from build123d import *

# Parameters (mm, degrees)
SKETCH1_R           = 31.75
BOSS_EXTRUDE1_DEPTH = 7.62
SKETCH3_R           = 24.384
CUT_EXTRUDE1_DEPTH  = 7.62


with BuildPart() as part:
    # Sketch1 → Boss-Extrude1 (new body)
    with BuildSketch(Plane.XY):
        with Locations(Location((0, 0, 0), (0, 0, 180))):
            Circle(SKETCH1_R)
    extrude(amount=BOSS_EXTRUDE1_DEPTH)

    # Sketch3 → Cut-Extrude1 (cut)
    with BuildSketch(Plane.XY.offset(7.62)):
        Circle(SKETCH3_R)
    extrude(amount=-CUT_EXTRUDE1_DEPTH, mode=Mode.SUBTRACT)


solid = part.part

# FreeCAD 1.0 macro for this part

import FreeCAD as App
import Part
import Sketcher
from FreeCAD import Vector
Q = App.Units.Quantity

doc = App.newDocument("Part")
body = doc.addObject("PartDesign::Body", "Body")

# Sketch on XY plane
sketch1 = body.newObject("Sketcher::SketchObject", "Sketch")
sketch1.AttachmentSupport = (doc.getObject("XY_Plane"), [""])
sketch1.MapMode = "FlatFace"
sketch1.addGeometry(Part.Circle(Vector(0, 0, 0), Vector(0, 0, 1), 32), False)
sketch1.addConstraint([
    Sketcher.Constraint("Coincident", 0, 3, -1, 1),
    Sketcher.Constraint("Diameter", 0, Q("2.5 in")),
])
pad1 = body.newObject("PartDesign::Pad", "Pad")
pad1.Profile = sketch1
pad1.Length = Q("0.3 in")

# Sketch on XY plane
sketch2 = body.newObject("Sketcher::SketchObject", "Sketch001")
sketch2.AttachmentSupport = (doc.getObject("XY_Plane"), [""])
sketch2.MapMode = "FlatFace"
sketch2.AttachmentOffset = App.Placement(Vector(0, 0, 0.3 * 25.4), App.Rotation())
sketch2.addGeometry(Part.Circle(Vector(0, 0, 0), Vector(0, 0, 1), 24), False)
sketch2.addConstraint([
    Sketcher.Constraint("Coincident", 0, 3, -1, 1),
    Sketcher.Constraint("Diameter", 0, Q("1.92 in")),
])
pocket1 = body.newObject("PartDesign::Pocket", "Pocket")
pocket1.Profile = sketch2
pocket1.Length = Q("0.3 in")

doc.recompute()
